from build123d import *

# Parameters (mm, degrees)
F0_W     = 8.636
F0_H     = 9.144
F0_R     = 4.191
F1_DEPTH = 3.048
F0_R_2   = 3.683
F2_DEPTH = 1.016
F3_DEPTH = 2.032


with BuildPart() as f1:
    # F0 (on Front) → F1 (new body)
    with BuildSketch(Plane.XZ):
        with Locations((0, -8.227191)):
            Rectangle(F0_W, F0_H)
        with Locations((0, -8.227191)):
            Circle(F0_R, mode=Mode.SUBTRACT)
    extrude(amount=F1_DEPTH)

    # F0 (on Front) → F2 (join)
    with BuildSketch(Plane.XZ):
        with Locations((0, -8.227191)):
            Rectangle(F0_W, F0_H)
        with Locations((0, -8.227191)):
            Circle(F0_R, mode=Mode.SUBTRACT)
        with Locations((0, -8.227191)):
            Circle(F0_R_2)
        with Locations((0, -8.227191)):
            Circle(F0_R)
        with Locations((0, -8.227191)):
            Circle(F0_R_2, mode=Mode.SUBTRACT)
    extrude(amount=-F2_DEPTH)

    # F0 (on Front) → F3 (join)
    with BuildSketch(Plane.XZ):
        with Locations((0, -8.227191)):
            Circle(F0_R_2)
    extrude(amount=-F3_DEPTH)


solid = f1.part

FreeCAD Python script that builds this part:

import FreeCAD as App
import Part
import Sketcher
from FreeCAD import Vector
Q = App.Units.Quantity


def add_polygon(sketch, points):
    """Adds a closed chain of lines whose ends are joined by coincident constraints."""
    first, n = sketch.GeometryCount, len(points)
    for a, b in zip(points, points[1:] + points[:1]):
        sketch.addGeometry(Part.LineSegment(App.Vector(*a, 0), App.Vector(*b, 0)), False)
    for i in range(n):
        sketch.addConstraint(Sketcher.Constraint("Coincident", first + i, 2, first + (i + 1) % n, 1))

doc = App.newDocument("Part")
body = doc.addObject("PartDesign::Body", "Body")

sketch1 = doc.addObject("Sketcher::SketchObject", "Sketch")
body.addObject(sketch1)
sketch1.AttachmentSupport = (doc.XZ_Plane, [""])
sketch1.MapMode = "FlatFace"
add_polygon(sketch1, [(-4.3, -3.7), (-4.3, -12.8), (4.3, -12.8), (4.3, -3.7)])
sketch1.addGeometry(Part.Circle(Vector(0, -8.2, 0), Vector(0, 0, 1), 4.2), False)
sketch1.addConstraint(Sketcher.Constraint("Vertical", 0))
sketch1.addConstraint(Sketcher.Constraint("Horizontal", 1))
sketch1.addConstraint(Sketcher.Constraint("Vertical", 2))
sketch1.addConstraint(Sketcher.Constraint("Horizontal", 3))
sketch1.addConstraint(Sketcher.Constraint("PointOnObject", 4, 3, -2))
sketch1.addConstraint(Sketcher.Constraint("Diameter", 4, Q("0.33 in")))
sketch1.addConstraint(Sketcher.Constraint("DistanceX", 1, 1, 1, 2, Q("0.34 in")))
sketch1.addConstraint(Sketcher.Constraint("DistanceY", 0, 2, 0, 1, Q("0.36 in")))
sketch1.addConstraint(Sketcher.Constraint("DistanceX", 0, 2, -1, 1, Q("0.17 in")))
sketch1.addConstraint(Sketcher.Constraint("DistanceY", 0, 2, 4, 3, Q("0.18 in")))
sketch1.addConstraint(Sketcher.Constraint("DistanceY", 4, 3, -1, 1, 8.227191))
pad1 = doc.addObject("PartDesign::Pad", "Pad")
body.addObject(pad1)
pad1.Profile = sketch1
pad1.Length = Q("0.12 in")

sketch2 = doc.addObject("Sketcher::SketchObject", "Sketch001")
body.addObject(sketch2)
sketch2.AttachmentSupport = (doc.XZ_Plane, [""])
sketch2.MapMode = "FlatFace"
add_polygon(sketch2, [(-4.3, -3.7), (-4.3, -12.8), (4.3, -12.8), (4.3, -3.7)])
sketch2.addGeometry(Part.Circle(Vector(0, -8.2, 0), Vector(0, 0, 1), 3.7), False)
sketch2.addConstraint(Sketcher.Constraint("Vertical", 0))
sketch2.addConstraint(Sketcher.Constraint("Horizontal", 1))
sketch2.addConstraint(Sketcher.Constraint("Vertical", 2))
sketch2.addConstraint(Sketcher.Constraint("Horizontal", 3))
sketch2.addConstraint(Sketcher.Constraint("PointOnObject", 4, 3, -2))
sketch2.addConstraint(Sketcher.Constraint("Diameter", 4, Q("0.29 in")))
sketch2.addConstraint(Sketcher.Constraint("DistanceX", 1, 1, 1, 2, Q("0.34 in")))
sketch2.addConstraint(Sketcher.Constraint("DistanceY", 0, 2, 0, 1, Q("0.36 in")))
sketch2.addConstraint(Sketcher.Constraint("DistanceX", 0, 2, -1, 1, Q("0.17 in")))
sketch2.addConstraint(Sketcher.Constraint("DistanceY", 0, 2, 4, 3, Q("0.18 in")))
sketch2.addConstraint(Sketcher.Constraint("DistanceY", 4, 3, -1, 1, 8.227191))
pad2 = doc.addObject("PartDesign::Pad", "Pad001")
body.addObject(pad2)
pad2.Profile = sketch2
pad2.Length = Q("0.04 in")
pad2.Reversed = True

sketch3 = doc.addObject("Sketcher::SketchObject", "Sketch002")
body.addObject(sketch3)
sketch3.AttachmentSupport = (doc.XZ_Plane, [""])
sketch3.MapMode = "FlatFace"
sketch3.addGeometry(Part.Circle(Vector(0, -8.2, 0), Vector(0, 0, 1), 3.7), False)
sketch3.addConstraint(Sketcher.Constraint("PointOnObject", 0, 3, -2))
sketch3.addConstraint(Sketcher.Constraint("Diameter", 0, Q("0.29 in")))
sketch3.addConstraint(Sketcher.Constraint("DistanceY", 0, 3, -1, 1, 8.227191))
pad3 = doc.addObject("PartDesign::Pad", "Pad002")
body.addObject(pad3)
pad3.Profile = sketch3
pad3.Length = Q("0.08 in")
pad3.Reversed = True

doc.recompute()
